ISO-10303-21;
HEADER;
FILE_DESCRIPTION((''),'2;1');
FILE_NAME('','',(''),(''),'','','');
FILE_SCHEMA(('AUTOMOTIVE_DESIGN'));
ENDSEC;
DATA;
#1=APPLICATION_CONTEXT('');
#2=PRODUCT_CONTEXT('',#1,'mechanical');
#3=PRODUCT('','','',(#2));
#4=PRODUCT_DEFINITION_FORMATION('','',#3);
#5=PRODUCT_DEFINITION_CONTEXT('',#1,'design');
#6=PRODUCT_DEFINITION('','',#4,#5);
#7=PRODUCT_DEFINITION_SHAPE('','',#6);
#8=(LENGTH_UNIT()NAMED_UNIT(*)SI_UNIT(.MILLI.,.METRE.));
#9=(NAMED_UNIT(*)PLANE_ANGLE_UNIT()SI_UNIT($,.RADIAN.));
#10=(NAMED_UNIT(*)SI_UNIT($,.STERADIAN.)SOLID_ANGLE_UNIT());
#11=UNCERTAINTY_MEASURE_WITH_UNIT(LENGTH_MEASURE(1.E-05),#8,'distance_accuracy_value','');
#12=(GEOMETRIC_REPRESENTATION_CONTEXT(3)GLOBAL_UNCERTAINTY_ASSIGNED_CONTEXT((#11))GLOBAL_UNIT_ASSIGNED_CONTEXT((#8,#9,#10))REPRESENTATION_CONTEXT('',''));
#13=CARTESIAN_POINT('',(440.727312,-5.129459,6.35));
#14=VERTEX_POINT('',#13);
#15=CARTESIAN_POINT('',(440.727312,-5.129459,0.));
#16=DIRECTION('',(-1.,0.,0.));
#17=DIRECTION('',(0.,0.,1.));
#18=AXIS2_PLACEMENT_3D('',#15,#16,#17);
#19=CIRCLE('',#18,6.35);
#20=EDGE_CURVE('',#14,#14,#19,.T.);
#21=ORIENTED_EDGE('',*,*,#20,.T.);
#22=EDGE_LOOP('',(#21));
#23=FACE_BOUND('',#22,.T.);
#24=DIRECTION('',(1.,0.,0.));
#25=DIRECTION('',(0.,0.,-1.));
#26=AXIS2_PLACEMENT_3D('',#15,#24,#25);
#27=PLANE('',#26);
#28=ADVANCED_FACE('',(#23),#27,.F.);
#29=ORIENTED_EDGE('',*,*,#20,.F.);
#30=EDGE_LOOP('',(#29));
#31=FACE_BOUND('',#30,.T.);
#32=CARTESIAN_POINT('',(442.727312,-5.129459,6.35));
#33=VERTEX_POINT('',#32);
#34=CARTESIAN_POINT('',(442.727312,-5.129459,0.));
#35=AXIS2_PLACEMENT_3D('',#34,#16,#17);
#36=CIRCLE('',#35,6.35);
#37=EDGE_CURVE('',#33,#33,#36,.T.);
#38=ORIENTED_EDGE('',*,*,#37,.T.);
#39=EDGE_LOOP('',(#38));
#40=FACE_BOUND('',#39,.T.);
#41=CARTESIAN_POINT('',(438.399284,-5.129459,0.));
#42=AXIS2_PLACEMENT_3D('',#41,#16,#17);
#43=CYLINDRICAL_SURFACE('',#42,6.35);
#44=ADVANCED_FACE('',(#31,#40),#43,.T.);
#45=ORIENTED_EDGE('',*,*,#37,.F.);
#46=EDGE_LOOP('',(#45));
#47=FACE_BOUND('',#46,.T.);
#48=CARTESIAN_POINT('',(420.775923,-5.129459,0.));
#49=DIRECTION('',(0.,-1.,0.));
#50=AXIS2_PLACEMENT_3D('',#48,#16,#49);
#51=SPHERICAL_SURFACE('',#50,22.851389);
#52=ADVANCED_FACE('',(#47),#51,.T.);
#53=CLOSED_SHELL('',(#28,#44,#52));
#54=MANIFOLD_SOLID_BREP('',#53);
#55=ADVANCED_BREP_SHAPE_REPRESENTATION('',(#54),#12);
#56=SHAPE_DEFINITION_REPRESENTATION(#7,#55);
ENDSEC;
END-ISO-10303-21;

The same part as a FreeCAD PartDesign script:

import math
import FreeCAD as App
import Part
import Sketcher

V = App.Vector

doc = App.newDocument("Part")
body = doc.addObject("PartDesign::Body", "Body")

sketch1 = doc.addObject("Sketcher::SketchObject", "Sketch")
body.addObject(sketch1)
sketch1.AttachmentSupport = (doc.XY_Plane, [""])
sketch1.MapMode = "FlatFace"
sketch1.addGeometry([
    Part.LineSegment(V(440.7, 1.2, 0), V(440.7, -5.1, 0)),
    Part.LineSegment(V(440.7, -5.1, 0), V(443.6, -5.1, 0)),
    Part.ArcOfCircle(Part.Circle(V(420.8, -5.1, 0), V(0, 0, 1), 22.9), math.radians(0), math.radians(16.13)),
    Part.LineSegment(V(442.7, 1.2, 0), V(440.7, 1.2, 0)),
], False)
sketch1.addGeometry(Part.LineSegment(V(420.8, -5.1, 0), V(443.6, -5.1, 0)), True)
sketch1.addConstraint([
    Sketcher.Constraint("Coincident", 0, 2, 1, 1),
    Sketcher.Constraint("Coincident", 1, 2, 2, 1),
    Sketcher.Constraint("Coincident", 2, 2, 3, 1),
    Sketcher.Constraint("Coincident", 3, 2, 0, 1),
    Sketcher.Constraint("Vertical", 0),
    Sketcher.Constraint("Horizontal", 1),
    Sketcher.Constraint("Horizontal", 3),
    Sketcher.Constraint("Horizontal", 4),
    Sketcher.Constraint("Coincident", 4, 1, 2, 3),
    Sketcher.Constraint("Coincident", 4, 2, 1, 2),
    Sketcher.Constraint("DistanceX", 3, 2, 3, 1, 2.0),
    Sketcher.Constraint("DistanceX", 1, 1, 1, 2, 2.9),
    Sketcher.Constraint("DistanceY", 0, 2, 0, 1, 6.35),
    Sketcher.Constraint("DistanceY", 2, 3, -1, 1, 5.129459),
    Sketcher.Constraint("DistanceX", -1, 1, 2, 3, 420.775923),
])
revolution = doc.addObject("PartDesign::Revolution", "Revolution")
body.addObject(revolution)
revolution.Profile = sketch1
revolution.ReferenceAxis = (sketch1, ["Axis0"])
revolution.Angle = 360

doc.recompute()
